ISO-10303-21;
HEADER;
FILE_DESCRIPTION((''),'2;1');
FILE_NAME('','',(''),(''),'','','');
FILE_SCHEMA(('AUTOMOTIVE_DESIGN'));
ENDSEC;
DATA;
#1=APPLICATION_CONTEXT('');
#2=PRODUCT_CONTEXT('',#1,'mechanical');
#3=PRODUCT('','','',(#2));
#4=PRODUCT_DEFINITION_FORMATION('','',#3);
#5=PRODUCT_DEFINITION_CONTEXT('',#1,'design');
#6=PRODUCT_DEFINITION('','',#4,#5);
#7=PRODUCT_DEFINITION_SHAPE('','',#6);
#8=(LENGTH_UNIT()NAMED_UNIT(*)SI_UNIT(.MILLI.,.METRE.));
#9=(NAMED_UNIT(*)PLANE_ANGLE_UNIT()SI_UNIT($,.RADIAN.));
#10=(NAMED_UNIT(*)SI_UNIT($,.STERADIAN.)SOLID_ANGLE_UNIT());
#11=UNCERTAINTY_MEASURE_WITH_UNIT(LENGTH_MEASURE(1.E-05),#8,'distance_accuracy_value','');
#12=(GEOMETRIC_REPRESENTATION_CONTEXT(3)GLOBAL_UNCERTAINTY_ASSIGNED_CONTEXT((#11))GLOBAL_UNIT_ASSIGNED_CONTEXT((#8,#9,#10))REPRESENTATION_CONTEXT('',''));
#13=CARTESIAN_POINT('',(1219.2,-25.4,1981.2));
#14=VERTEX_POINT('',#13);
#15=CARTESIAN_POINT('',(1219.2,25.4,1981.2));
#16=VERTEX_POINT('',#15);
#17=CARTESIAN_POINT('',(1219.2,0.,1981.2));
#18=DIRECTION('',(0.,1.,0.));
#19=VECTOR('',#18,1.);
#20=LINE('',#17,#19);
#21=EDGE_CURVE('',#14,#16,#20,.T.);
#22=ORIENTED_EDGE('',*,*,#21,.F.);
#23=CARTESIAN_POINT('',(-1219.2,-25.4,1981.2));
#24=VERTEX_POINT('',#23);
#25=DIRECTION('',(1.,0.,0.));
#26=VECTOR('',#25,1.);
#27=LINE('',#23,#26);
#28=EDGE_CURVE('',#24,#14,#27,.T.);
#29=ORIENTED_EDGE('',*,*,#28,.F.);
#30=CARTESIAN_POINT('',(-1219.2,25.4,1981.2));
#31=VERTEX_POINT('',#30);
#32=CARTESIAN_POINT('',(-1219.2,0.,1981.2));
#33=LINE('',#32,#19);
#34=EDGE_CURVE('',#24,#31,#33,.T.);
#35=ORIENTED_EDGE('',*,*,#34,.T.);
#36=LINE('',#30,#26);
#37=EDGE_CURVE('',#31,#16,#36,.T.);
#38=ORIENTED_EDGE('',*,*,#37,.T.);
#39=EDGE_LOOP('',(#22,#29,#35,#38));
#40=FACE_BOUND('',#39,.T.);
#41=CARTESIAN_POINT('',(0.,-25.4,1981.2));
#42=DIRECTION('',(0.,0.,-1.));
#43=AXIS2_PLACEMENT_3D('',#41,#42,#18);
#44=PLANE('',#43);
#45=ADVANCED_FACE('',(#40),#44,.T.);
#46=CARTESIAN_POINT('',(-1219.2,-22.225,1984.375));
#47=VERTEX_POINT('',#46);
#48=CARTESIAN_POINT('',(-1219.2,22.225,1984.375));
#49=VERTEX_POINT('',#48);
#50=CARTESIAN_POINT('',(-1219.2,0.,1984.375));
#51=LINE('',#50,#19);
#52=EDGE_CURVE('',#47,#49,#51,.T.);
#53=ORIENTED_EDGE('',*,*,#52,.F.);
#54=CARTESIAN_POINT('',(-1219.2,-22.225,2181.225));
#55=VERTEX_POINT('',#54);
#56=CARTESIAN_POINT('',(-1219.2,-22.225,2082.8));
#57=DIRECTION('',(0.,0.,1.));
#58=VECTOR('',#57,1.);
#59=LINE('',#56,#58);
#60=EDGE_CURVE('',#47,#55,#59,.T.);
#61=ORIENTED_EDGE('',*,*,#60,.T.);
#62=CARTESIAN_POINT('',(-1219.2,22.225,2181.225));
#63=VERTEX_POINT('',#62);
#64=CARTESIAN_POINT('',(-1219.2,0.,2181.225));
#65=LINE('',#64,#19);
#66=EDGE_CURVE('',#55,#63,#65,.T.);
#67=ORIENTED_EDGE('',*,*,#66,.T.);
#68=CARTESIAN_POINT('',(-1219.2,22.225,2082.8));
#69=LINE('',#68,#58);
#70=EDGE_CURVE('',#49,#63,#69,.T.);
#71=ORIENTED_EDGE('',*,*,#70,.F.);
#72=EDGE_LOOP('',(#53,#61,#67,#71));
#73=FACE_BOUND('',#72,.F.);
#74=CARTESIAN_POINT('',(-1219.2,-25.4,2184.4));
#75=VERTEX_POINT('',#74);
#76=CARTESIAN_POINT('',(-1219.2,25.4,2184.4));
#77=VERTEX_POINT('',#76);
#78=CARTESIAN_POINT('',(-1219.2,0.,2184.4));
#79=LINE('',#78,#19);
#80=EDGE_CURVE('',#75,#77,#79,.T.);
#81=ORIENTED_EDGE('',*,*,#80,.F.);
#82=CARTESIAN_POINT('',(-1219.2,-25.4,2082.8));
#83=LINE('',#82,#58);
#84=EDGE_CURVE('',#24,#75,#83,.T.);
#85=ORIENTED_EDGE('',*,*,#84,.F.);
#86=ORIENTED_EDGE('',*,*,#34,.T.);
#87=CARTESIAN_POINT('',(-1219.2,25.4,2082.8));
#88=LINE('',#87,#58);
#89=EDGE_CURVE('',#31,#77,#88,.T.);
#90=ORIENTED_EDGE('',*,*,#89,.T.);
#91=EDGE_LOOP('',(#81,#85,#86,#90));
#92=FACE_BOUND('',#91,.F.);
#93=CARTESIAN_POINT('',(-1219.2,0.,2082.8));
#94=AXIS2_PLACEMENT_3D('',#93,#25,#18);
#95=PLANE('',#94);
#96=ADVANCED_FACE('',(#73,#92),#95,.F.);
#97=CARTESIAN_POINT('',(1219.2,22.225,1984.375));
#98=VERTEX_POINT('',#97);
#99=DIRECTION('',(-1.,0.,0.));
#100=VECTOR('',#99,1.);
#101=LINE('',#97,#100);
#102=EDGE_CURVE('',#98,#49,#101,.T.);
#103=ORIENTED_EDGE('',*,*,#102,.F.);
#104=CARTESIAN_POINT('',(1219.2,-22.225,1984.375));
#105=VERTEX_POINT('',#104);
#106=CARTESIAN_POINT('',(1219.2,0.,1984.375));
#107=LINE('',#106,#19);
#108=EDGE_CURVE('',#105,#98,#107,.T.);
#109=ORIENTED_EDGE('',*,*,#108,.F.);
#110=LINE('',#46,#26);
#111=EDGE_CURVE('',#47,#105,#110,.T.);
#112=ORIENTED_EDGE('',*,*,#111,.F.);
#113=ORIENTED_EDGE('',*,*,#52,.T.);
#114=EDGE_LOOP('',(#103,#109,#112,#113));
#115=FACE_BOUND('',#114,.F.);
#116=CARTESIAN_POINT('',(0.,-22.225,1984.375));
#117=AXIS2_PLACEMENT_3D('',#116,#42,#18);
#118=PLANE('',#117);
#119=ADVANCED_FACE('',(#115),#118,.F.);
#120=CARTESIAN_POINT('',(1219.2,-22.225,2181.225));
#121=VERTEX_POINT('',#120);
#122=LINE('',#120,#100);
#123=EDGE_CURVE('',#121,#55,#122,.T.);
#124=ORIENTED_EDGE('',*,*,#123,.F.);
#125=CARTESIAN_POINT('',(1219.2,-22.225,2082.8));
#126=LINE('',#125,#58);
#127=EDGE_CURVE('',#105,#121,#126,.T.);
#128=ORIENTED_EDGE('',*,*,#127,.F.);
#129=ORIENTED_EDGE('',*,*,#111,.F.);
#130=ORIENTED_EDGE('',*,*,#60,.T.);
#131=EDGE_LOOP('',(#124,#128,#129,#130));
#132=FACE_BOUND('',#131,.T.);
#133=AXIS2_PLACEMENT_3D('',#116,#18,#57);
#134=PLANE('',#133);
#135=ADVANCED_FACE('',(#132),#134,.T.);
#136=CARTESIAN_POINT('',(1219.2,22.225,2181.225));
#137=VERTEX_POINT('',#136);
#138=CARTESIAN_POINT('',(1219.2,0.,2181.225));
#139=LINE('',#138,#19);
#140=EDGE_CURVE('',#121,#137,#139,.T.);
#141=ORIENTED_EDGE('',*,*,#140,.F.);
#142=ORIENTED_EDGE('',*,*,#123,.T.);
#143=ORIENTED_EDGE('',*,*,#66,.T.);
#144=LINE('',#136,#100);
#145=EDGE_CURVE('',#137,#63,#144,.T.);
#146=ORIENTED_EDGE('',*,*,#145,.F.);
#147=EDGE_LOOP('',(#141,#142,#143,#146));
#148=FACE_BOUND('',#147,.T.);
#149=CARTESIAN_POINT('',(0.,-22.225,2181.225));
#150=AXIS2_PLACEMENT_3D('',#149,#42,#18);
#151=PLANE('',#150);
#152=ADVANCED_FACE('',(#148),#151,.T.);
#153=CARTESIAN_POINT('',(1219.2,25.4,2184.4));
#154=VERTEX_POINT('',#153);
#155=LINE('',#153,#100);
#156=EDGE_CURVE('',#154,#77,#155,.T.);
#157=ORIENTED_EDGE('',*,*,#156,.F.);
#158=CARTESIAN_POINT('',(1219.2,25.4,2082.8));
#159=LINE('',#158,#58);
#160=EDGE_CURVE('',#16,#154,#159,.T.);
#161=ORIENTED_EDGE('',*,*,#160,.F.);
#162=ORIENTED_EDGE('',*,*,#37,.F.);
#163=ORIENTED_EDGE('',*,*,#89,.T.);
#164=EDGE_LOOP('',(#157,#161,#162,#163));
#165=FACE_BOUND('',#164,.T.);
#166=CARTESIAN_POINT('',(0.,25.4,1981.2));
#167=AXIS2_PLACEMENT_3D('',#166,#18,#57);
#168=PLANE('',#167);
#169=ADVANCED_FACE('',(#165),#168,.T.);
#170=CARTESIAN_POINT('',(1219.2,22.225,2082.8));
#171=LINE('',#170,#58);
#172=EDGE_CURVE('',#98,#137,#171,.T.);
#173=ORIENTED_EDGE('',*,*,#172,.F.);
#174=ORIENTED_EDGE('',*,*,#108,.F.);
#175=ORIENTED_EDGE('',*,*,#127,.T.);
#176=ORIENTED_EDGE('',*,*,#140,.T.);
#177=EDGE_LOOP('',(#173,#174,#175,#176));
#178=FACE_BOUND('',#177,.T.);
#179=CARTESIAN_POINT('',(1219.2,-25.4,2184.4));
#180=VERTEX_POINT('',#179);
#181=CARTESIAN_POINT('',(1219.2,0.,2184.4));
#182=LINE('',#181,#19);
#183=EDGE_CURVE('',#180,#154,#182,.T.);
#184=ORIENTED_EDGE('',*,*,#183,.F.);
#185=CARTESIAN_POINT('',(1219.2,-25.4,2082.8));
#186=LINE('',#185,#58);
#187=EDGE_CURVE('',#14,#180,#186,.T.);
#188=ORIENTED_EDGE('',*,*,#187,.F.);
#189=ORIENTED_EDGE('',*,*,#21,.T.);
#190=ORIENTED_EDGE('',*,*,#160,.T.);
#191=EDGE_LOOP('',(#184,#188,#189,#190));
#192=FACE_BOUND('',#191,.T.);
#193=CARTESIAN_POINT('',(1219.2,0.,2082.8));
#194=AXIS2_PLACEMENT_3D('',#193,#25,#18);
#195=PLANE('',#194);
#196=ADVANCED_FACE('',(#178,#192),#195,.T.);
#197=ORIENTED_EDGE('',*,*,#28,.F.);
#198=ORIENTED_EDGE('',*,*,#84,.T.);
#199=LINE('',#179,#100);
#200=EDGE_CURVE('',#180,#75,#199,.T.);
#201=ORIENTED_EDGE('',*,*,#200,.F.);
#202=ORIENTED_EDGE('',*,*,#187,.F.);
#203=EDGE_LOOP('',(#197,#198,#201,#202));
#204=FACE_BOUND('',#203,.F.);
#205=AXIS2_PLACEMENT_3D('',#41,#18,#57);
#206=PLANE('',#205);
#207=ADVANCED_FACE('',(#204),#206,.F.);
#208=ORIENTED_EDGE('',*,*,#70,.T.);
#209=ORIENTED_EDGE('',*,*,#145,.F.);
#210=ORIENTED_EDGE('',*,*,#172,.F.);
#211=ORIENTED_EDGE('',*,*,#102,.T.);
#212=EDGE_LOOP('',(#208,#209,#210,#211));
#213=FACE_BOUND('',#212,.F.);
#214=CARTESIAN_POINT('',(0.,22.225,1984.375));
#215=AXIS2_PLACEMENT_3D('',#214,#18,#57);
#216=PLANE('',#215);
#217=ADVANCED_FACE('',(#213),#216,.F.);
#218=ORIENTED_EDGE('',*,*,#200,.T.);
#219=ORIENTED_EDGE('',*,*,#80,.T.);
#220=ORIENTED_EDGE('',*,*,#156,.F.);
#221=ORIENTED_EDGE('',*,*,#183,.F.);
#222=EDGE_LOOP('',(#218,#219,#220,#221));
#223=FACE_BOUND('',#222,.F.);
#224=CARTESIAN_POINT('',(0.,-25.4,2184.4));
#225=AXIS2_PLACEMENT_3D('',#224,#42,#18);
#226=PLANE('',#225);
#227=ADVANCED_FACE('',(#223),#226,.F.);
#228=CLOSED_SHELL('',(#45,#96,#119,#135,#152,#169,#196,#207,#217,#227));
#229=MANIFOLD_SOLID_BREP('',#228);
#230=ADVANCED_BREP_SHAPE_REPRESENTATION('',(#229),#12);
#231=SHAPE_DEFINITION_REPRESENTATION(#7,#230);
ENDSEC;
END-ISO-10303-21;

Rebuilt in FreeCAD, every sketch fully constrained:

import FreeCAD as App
import Part
import Sketcher
from FreeCAD import Vector
Q = App.Units.Quantity

doc = App.newDocument("Part")
body = doc.addObject("PartDesign::Body", "Body")

sketch1 = body.newObject("Sketcher::SketchObject", "Sketch")
sketch1.AttachmentSupport = (doc.getObject("YZ_Plane"), [""])
sketch1.MapMode = "FlatFace"
sketch1.addGeometry([
    Part.LineSegment(Vector(-25, 2184, 0), Vector(-25, 1981, 0)),
    Part.LineSegment(Vector(-25, 1981, 0), Vector(25, 1981, 0)),
    Part.LineSegment(Vector(25, 1981, 0), Vector(25, 2184, 0)),
    Part.LineSegment(Vector(25, 2184, 0), Vector(-25, 2184, 0)),
    Part.LineSegment(Vector(22, 1984, 0), Vector(-22, 1984, 0)),
    Part.LineSegment(Vector(-22, 1984, 0), Vector(-22, 2181, 0)),
    Part.LineSegment(Vector(-22, 2181, 0), Vector(22, 2181, 0)),
    Part.LineSegment(Vector(22, 2181, 0), Vector(22, 1984, 0)),
], False)
sketch1.addConstraint([
    Sketcher.Constraint("Coincident", 0, 2, 1, 1),
    Sketcher.Constraint("Coincident", 1, 2, 2, 1),
    Sketcher.Constraint("Coincident", 2, 2, 3, 1),
    Sketcher.Constraint("Coincident", 3, 2, 0, 1),
    Sketcher.Constraint("Coincident", 4, 2, 5, 1),
    Sketcher.Constraint("Coincident", 5, 2, 6, 1),
    Sketcher.Constraint("Coincident", 6, 2, 7, 1),
    Sketcher.Constraint("Coincident", 7, 2, 4, 1),
    Sketcher.Constraint("Vertical", 0),
    Sketcher.Constraint("Horizontal", 1),
    Sketcher.Constraint("Vertical", 2),
    Sketcher.Constraint("Horizontal", 3),
    Sketcher.Constraint("Horizontal", 4),
    Sketcher.Constraint("Vertical", 5),
    Sketcher.Constraint("Horizontal", 6),
    Sketcher.Constraint("Vertical", 7),
    Sketcher.Constraint("DistanceX", 1, 1, 1, 2, Q("2 in")),
    Sketcher.Constraint("DistanceY", 0, 2, 0, 1, Q("8 in")),
    Sketcher.Constraint("DistanceX", 0, 2, -1, 1, Q("1 in")),
    Sketcher.Constraint("DistanceY", -1, 1, 0, 2, Q("78 in")),
    Sketcher.Constraint("DistanceX", 4, 2, 4, 1, Q("1.75 in")),
    Sketcher.Constraint("DistanceY", 5, 1, 5, 2, Q("7.75 in")),
    Sketcher.Constraint("DistanceX", 4, 2, -1, 1, Q("0.875 in")),
    Sketcher.Constraint("DistanceY", -1, 1, 4, 2, Q("78.125 in")),
])
pad1 = body.newObject("PartDesign::Pad", "Pad")
pad1.Profile = sketch1
pad1.Length = Q("96 in")
pad1.Midplane = True

doc.recompute()
